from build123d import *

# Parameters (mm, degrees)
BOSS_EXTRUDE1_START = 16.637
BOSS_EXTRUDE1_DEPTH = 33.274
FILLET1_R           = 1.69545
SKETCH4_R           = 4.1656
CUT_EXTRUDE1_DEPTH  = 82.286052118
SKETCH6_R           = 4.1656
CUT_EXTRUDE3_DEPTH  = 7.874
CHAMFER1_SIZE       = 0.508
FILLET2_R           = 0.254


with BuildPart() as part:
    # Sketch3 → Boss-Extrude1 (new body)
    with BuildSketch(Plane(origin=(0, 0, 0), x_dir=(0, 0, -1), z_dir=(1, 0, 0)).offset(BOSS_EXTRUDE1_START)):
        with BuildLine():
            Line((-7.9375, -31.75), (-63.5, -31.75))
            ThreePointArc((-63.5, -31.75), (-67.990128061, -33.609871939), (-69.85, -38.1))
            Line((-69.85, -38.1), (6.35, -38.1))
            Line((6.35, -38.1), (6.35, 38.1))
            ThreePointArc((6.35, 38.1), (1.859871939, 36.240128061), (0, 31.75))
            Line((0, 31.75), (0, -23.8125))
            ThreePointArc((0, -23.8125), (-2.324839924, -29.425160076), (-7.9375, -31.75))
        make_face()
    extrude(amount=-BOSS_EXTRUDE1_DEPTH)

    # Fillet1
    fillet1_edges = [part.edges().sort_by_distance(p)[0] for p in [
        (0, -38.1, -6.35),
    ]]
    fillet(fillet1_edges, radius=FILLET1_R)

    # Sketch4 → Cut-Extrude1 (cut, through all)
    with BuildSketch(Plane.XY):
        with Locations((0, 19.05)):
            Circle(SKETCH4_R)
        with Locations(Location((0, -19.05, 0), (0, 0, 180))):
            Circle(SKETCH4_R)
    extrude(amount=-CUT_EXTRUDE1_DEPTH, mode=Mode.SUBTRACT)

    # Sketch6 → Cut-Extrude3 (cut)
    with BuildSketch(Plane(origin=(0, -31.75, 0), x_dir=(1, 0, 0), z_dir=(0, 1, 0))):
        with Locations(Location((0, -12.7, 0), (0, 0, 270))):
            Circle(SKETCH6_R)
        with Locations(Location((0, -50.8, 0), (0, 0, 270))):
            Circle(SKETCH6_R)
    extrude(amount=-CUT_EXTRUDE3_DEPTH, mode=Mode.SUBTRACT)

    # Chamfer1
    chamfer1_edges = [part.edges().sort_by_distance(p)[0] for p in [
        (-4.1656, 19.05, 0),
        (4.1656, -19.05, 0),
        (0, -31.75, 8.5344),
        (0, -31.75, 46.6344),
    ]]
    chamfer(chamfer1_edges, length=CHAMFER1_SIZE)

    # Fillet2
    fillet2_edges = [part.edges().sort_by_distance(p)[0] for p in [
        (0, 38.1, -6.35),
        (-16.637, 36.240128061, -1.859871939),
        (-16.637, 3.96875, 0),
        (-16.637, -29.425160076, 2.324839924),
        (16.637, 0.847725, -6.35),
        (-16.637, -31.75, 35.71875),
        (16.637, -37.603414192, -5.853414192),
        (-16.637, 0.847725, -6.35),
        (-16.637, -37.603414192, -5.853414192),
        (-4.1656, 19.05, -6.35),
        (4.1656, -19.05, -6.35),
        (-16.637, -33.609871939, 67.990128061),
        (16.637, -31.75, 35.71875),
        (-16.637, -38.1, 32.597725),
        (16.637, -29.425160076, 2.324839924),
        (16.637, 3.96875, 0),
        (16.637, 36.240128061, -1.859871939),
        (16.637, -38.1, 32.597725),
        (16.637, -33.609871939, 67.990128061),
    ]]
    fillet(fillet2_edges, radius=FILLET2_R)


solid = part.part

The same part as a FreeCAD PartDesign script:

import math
import FreeCAD as App
import Part
import Sketcher
Q = App.Units.Quantity


def edges_at(feature, points):
    """Names of the edges that pass closest to the given points."""
    edges = feature.Shape.Edges
    near = lambda p: min(range(len(edges)), key=lambda i: edges[i].distToShape(Part.Vertex(*p))[0])
    return sorted({f"Edge{near(p) + 1}" for p in points})

doc = App.newDocument("Part")
body = doc.addObject("PartDesign::Body", "Body")

sketch1 = body.newObject("Sketcher::SketchObject", "Sketch")
sketch1.AttachmentSupport = (doc.getObject("YZ_Plane"), [""])
sketch1.MapMode = "FlatFace"
sketch1.AttachmentOffset = App.Placement(App.Vector(0, 0, 0.655 * 25.4), App.Rotation())
sketch1.addGeometry(Part.LineSegment(App.Vector(-32, 8, 0), App.Vector(-32, 64, 0)), False)
sketch1.addGeometry(Part.ArcOfCircle(Part.Circle(App.Vector(-38, 64, 0), App.Vector(0, 0, 1), 6), math.radians(0), math.radians(90)), False)
sketch1.addGeometry(Part.LineSegment(App.Vector(-38, 70, 0), App.Vector(-38, -6, 0)), False)
sketch1.addGeometry(Part.LineSegment(App.Vector(-38, -6, 0), App.Vector(38, -6, 0)), False)
sketch1.addGeometry(Part.ArcOfCircle(Part.Circle(App.Vector(32, -6, 0), App.Vector(0, 0, 1), 6), math.radians(0), math.radians(90)), False)
sketch1.addGeometry(Part.LineSegment(App.Vector(32, 0, 0), App.Vector(-24, 0, 0)), False)
sketch1.addGeometry(Part.ArcOfCircle(Part.Circle(App.Vector(-24, 8, 0), App.Vector(0, 0, 1), 8), math.radians(180), math.radians(270)), False)
sketch1.addConstraint(Sketcher.Constraint("Tangent", 0, 2, 1, 1))
sketch1.addConstraint(Sketcher.Constraint("Coincident", 1, 2, 2, 1))
sketch1.addConstraint(Sketcher.Constraint("Coincident", 2, 2, 3, 1))
sketch1.addConstraint(Sketcher.Constraint("Coincident", 3, 2, 4, 1))
sketch1.addConstraint(Sketcher.Constraint("Tangent", 4, 2, 5, 1))
sketch1.addConstraint(Sketcher.Constraint("Tangent", 5, 2, 6, 2))
sketch1.addConstraint(Sketcher.Constraint("Tangent", 6, 1, 0, 1))
sketch1.addConstraint(Sketcher.Constraint("Vertical", 0))
sketch1.addConstraint(Sketcher.Constraint("Vertical", 2))
sketch1.addConstraint(Sketcher.Constraint("Horizontal", 3))
sketch1.addConstraint(Sketcher.Constraint("Horizontal", 5))
sketch1.addConstraint(Sketcher.Constraint("Equal", 1, 4))
sketch1.addConstraint(Sketcher.Constraint("PointOnObject", 4, 2, -1))
sketch1.addConstraint(Sketcher.Constraint("Horizontal", 4, 3, 2, 2))
sketch1.addConstraint(Sketcher.Constraint("Equal", 5, 0))
sketch1.addConstraint(Sketcher.Constraint("Equal", 3, 2))
sketch1.addConstraint(Sketcher.Constraint("DistanceX", 3, 1, 3, 2, Q("3 in")))
sketch1.addConstraint(Sketcher.Constraint("Radius", 1, Q("0.25 in")))
sketch1.addConstraint(Sketcher.Constraint("Radius", 6, Q("0.3125 in")))
sketch1.addConstraint(Sketcher.Constraint("DistanceX", 1, 3, -1, 1, Q("1.5 in")))
pad1 = body.newObject("PartDesign::Pad", "Pad")
pad1.Profile = sketch1
pad1.Length = Q("1.31 in")
pad1.Reversed = True
doc.recompute()

fillet = body.newObject("PartDesign::Fillet", "Fillet")
fillet.Base = (pad1, edges_at(pad1, [(0, -38.1, -6.35)]))
fillet.Radius = 1.69545

sketch2 = body.newObject("Sketcher::SketchObject", "Sketch001")
sketch2.AttachmentSupport = (doc.getObject("XY_Plane"), [""])
sketch2.MapMode = "FlatFace"
sketch2.addGeometry(Part.Circle(App.Vector(0, 19.1, 0), App.Vector(0, 0, 1), 4.2), False)
sketch2.addGeometry(Part.Circle(App.Vector(0, -19.1, 0), App.Vector(0, 0, 1), 4.2), False)
sketch2.addConstraint(Sketcher.Constraint("Equal", 0, 1))
sketch2.addConstraint(Sketcher.Constraint("Symmetric", 0, 3, 1, 3, -1, 1))
sketch2.addConstraint(Sketcher.Constraint("PointOnObject", 0, 3, -2))
sketch2.addConstraint(Sketcher.Constraint("Diameter", 0, Q("0.328 in")))
sketch2.addConstraint(Sketcher.Constraint("DistanceY", 1, 3, 0, 3, Q("1.5 in")))
pocket1 = body.newObject("PartDesign::Pocket", "Pocket")
pocket1.Profile = sketch2
pocket1.Type = "ThroughAll"

sketch3 = body.newObject("Sketcher::SketchObject", "Sketch002")
sketch3.AttachmentSupport = (doc.getObject("XZ_Plane"), [""])
sketch3.MapMode = "FlatFace"
sketch3.AttachmentOffset = App.Placement(App.Vector(0, 0, 1.25 * 25.4), App.Rotation())
sketch3.addGeometry(Part.Circle(App.Vector(0, 12.7, 0), App.Vector(0, 0, 1), 4.2), False)
sketch3.addGeometry(Part.Circle(App.Vector(0, 50.8, 0), App.Vector(0, 0, 1), 4.2), False)
sketch3.addConstraint(Sketcher.Constraint("Equal", 0, 1))
sketch3.addConstraint(Sketcher.Constraint("PointOnObject", 0, 3, -2))
sketch3.addConstraint(Sketcher.Constraint("PointOnObject", 1, 3, -2))
sketch3.addConstraint(Sketcher.Constraint("Diameter", 0, Q("0.328 in")))
sketch3.addConstraint(Sketcher.Constraint("DistanceY", -1, 1, 1, 3, Q("2 in")))
sketch3.addConstraint(Sketcher.Constraint("DistanceY", -1, 1, 0, 3, Q("0.5 in")))
pocket2 = body.newObject("PartDesign::Pocket", "Pocket001")
pocket2.Profile = sketch3
pocket2.Length = Q("0.31 in")
pocket2.Reversed = True
doc.recompute()

chamfer = body.newObject("PartDesign::Chamfer", "Chamfer")
chamfer.Base = (pocket2, edges_at(pocket2, [
    (-4.166, 19.05, 0),
    (4.166, -19.05, 0),
    (0, -31.75, 8.534),
    (0, -31.75, 46.634),
]))
chamfer.Size = Q("0.02 in")
doc.recompute()

fillet2 = body.newObject("PartDesign::Fillet", "Fillet001")
fillet2.Base = (chamfer, edges_at(chamfer, [
    (0, 38.1, -6.35),
    (-16.637, 36.24, -1.86),
    (-16.637, 3.969, 0),
    (-16.637, -29.425, 2.325),
    (16.637, 0.848, -6.35),
    (-16.637, -31.75, 35.719),
    (16.637, -37.603, -5.853),
    (-16.637, 0.848, -6.35),
    (-16.637, -37.603, -5.853),
    (-4.166, 19.05, -6.35),
    (4.166, -19.05, -6.35),
    (-16.637, -33.61, 67.99),
    (16.637, -31.75, 35.719),
    (-16.637, -38.1, 32.598),
    (16.637, -29.425, 2.325),
    (16.637, 3.969, 0),
    (16.637, 36.24, -1.86),
    (16.637, -38.1, 32.598),
    (16.637, -33.61, 67.99),
]))
fillet2.Radius = Q("0.01 in")

doc.recompute()
